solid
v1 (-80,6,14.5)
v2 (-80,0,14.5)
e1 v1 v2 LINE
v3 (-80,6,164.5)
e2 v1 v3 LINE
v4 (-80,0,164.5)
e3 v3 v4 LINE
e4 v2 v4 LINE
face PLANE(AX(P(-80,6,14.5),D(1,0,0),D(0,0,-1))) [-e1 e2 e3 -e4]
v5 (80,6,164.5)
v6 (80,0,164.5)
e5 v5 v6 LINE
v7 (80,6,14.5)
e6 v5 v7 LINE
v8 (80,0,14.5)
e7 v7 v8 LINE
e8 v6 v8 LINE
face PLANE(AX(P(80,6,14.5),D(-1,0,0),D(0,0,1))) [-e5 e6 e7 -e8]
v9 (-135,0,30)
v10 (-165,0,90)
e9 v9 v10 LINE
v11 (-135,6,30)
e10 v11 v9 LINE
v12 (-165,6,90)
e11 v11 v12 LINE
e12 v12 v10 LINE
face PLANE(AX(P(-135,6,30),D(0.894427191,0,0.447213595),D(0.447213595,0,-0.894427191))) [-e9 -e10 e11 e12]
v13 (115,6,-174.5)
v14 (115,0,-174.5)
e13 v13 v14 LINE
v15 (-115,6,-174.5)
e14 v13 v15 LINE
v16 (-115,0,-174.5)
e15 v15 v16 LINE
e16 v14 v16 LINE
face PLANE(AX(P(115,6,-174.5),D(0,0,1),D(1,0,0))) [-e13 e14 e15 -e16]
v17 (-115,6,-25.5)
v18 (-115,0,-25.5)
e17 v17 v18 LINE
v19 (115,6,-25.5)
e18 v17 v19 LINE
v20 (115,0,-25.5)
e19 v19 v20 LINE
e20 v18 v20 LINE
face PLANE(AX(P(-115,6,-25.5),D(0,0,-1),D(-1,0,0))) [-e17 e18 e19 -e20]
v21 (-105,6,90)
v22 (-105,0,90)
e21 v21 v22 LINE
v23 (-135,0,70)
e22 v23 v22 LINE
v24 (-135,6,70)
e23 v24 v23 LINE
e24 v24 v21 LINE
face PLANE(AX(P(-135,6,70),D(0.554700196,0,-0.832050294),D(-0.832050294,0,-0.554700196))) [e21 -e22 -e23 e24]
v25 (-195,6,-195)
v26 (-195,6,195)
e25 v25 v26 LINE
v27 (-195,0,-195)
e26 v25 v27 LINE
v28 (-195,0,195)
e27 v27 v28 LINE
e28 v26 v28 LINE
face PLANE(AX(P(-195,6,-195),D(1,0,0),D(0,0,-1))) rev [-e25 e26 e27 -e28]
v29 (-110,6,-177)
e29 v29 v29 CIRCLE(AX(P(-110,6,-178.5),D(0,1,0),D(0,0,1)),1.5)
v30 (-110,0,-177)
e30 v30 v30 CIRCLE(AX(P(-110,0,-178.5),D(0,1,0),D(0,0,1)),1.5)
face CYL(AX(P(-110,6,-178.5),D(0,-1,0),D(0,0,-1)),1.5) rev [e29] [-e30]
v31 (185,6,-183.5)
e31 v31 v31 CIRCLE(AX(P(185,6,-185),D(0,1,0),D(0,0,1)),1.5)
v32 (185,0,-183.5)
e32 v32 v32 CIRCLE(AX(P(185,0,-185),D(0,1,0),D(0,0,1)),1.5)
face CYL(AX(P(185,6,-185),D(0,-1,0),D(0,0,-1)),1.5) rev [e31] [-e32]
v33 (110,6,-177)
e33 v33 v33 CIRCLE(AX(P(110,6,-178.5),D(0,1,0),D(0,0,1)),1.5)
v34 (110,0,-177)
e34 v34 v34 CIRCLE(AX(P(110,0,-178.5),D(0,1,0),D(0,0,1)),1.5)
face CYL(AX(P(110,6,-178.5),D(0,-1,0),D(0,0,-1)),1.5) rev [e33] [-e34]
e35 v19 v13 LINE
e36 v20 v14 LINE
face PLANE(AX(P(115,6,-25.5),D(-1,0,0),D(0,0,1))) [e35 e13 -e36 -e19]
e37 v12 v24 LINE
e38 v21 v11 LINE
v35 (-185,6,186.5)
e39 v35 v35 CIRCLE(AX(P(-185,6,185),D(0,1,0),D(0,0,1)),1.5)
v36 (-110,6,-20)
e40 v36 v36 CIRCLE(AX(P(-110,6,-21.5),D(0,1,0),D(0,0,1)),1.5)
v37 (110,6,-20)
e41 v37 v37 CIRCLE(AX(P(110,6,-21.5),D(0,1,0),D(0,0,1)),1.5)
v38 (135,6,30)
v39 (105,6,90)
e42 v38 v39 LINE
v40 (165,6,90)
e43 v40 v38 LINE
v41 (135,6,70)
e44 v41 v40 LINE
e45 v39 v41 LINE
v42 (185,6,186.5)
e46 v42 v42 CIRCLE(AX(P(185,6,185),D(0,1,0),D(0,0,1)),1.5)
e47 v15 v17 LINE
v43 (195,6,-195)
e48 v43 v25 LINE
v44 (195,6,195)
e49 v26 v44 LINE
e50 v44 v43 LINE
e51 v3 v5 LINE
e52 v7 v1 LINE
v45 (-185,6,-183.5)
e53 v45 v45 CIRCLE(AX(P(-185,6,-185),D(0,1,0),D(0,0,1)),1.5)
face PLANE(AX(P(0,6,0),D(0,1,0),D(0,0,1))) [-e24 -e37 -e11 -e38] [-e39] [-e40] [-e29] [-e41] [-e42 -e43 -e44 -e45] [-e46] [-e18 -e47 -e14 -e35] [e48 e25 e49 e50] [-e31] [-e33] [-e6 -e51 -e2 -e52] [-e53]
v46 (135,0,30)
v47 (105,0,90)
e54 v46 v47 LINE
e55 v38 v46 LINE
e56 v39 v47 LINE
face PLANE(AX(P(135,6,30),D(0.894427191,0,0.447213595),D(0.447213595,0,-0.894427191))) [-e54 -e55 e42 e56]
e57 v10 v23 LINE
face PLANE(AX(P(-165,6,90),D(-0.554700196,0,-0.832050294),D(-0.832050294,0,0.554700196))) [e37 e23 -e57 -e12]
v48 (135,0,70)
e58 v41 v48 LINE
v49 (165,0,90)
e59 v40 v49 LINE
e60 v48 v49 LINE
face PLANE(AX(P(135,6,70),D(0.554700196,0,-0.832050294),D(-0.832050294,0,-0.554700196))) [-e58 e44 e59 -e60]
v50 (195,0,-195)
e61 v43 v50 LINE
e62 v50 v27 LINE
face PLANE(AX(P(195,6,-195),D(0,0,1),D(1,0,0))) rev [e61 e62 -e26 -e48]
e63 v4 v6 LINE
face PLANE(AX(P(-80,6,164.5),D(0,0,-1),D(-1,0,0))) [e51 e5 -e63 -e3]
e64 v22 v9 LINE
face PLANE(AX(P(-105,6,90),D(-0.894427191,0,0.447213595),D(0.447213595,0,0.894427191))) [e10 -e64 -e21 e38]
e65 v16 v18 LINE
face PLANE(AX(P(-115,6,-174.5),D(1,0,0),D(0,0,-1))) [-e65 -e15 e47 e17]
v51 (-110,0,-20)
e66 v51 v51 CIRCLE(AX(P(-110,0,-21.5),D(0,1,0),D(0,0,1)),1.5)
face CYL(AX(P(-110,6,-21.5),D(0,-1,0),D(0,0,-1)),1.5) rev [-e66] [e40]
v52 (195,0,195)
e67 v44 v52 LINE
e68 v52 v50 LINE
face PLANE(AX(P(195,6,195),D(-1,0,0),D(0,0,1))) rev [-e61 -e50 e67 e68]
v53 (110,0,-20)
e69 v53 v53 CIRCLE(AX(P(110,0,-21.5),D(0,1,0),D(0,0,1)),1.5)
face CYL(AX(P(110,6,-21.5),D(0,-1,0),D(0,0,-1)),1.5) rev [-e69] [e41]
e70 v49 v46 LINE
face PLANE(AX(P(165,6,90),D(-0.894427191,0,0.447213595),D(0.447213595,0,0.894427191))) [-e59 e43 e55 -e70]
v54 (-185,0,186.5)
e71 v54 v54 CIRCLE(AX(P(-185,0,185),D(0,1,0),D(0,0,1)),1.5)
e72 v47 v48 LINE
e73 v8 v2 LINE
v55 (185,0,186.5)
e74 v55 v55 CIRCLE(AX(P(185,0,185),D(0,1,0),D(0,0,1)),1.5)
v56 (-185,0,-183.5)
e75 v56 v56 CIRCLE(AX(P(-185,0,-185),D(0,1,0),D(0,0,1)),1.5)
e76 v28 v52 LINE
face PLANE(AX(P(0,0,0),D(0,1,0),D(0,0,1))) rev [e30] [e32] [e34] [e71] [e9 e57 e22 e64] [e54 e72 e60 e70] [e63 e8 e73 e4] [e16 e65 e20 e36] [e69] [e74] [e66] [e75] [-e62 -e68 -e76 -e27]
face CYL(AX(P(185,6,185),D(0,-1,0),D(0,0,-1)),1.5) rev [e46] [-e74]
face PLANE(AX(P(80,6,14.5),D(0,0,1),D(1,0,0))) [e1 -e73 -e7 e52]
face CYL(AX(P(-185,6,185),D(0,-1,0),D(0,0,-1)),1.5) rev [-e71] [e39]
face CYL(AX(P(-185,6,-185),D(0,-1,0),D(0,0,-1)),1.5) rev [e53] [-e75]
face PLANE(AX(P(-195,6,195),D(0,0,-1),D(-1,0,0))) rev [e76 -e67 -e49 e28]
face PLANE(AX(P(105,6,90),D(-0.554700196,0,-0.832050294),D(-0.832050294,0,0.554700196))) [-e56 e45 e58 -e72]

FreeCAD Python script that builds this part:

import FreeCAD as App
import Part
import Sketcher
Q = App.Units.Quantity

doc = App.newDocument("Part")
params = doc.addObject("Spreadsheet::Sheet", "Params")
for row, (alias, value) in enumerate([
    ("sketch1_diameter", "3 mm"),
    ("sketch1_width", "390 mm"),
    ("sketch1_width2", "160 mm"),
    ("sketch1_width3", "230 mm"),
    ("sketch1_height", "150 mm"),
    ("pad1_length", "6 mm"),
], start=1):
    params.set(f"A{row}", alias)
    params.set(f"B{row}", "=" + value)
    params.setAlias(f"B{row}", alias)

body = doc.addObject("PartDesign::Body", "Body")

# Sketch on XZ plane
sketch1 = body.newObject("Sketcher::SketchObject", "Sketch")
sketch1.AttachmentSupport = (doc.getObject("XZ_Plane"), [""])
sketch1.MapMode = "FlatFace"
sketch1.addGeometry([
    Part.LineSegment(App.Vector(-195, -195, 0), App.Vector(-195, 195, 0)),  # 0
    Part.LineSegment(App.Vector(-195, 195, 0), App.Vector(195, 195, 0)),  # 1
    Part.LineSegment(App.Vector(195, 195, 0), App.Vector(195, -195, 0)),  # 2
    Part.LineSegment(App.Vector(195, -195, 0), App.Vector(-195, -195, 0)),  # 3
    Part.Circle(App.Vector(-185, 185, 0), App.Vector(0, 0, 1), 1.5),  # 4
    Part.LineSegment(App.Vector(-105, 90, 0), App.Vector(-135, 70, 0)),  # 5
    Part.LineSegment(App.Vector(-135, 70, 0), App.Vector(-165, 90, 0)),  # 6
    Part.LineSegment(App.Vector(-165, 90, 0), App.Vector(-135, 30, 0)),  # 7
    Part.LineSegment(App.Vector(-135, 30, 0), App.Vector(-105, 90, 0)),  # 8
    Part.Circle(App.Vector(185, 185, 0), App.Vector(0, 0, 1), 1.5),  # 9
    Part.LineSegment(App.Vector(80, 164.5, 0), App.Vector(-80, 164.5, 0)),  # 10
    Part.LineSegment(App.Vector(-80, 164.5, 0), App.Vector(-80, 14.5, 0)),  # 11
    Part.LineSegment(App.Vector(-80, 14.5, 0), App.Vector(80, 14.5, 0)),  # 12
    Part.LineSegment(App.Vector(80, 14.5, 0), App.Vector(80, 164.5, 0)),  # 13
    Part.LineSegment(App.Vector(165, 90, 0), App.Vector(135, 70, 0)),  # 14
    Part.LineSegment(App.Vector(135, 70, 0), App.Vector(105, 90, 0)),  # 15
    Part.LineSegment(App.Vector(105, 90, 0), App.Vector(135, 30, 0)),  # 16
    Part.LineSegment(App.Vector(135, 30, 0), App.Vector(165, 90, 0)),  # 17
    Part.Circle(App.Vector(-110, -21.5, 0), App.Vector(0, 0, 1), 1.5),  # 18
    Part.Circle(App.Vector(-185, -185, 0), App.Vector(0, 0, 1), 1.5),  # 19
    Part.Circle(App.Vector(-110, -178.5, 0), App.Vector(0, 0, 1), 1.5),  # 20
    Part.Circle(App.Vector(110, -21.5, 0), App.Vector(0, 0, 1), 1.5),  # 21
    Part.LineSegment(App.Vector(115, -25.5, 0), App.Vector(-115, -25.5, 0)),  # 22
    Part.LineSegment(App.Vector(-115, -25.5, 0), App.Vector(-115, -174.5, 0)),  # 23
    Part.LineSegment(App.Vector(-115, -174.5, 0), App.Vector(115, -174.5, 0)),  # 24
    Part.LineSegment(App.Vector(115, -174.5, 0), App.Vector(115, -25.5, 0)),  # 25
    Part.Circle(App.Vector(110, -178.5, 0), App.Vector(0, 0, 1), 1.5),  # 26
    Part.Circle(App.Vector(185, -185, 0), App.Vector(0, 0, 1), 1.5),  # 27
], False)
sketch1.addConstraint([
    Sketcher.Constraint("Coincident", 0, 2, 1, 1),
    Sketcher.Constraint("Coincident", 1, 2, 2, 1),
    Sketcher.Constraint("Coincident", 2, 2, 3, 1),
    Sketcher.Constraint("Coincident", 3, 2, 0, 1),
    Sketcher.Constraint("Coincident", 5, 2, 6, 1),
    Sketcher.Constraint("Coincident", 6, 2, 7, 1),
    Sketcher.Constraint("Coincident", 7, 2, 8, 1),
    Sketcher.Constraint("Coincident", 8, 2, 5, 1),
    Sketcher.Constraint("Coincident", 10, 2, 11, 1),
    Sketcher.Constraint("Coincident", 11, 2, 12, 1),
    Sketcher.Constraint("Coincident", 12, 2, 13, 1),
    Sketcher.Constraint("Coincident", 13, 2, 10, 1),
    Sketcher.Constraint("Coincident", 14, 2, 15, 1),
    Sketcher.Constraint("Coincident", 15, 2, 16, 1),
    Sketcher.Constraint("Coincident", 16, 2, 17, 1),
    Sketcher.Constraint("Coincident", 17, 2, 14, 1),
    Sketcher.Constraint("Coincident", 22, 2, 23, 1),
    Sketcher.Constraint("Coincident", 23, 2, 24, 1),
    Sketcher.Constraint("Coincident", 24, 2, 25, 1),
    Sketcher.Constraint("Coincident", 25, 2, 22, 1),
    Sketcher.Constraint("Vertical", 0),
    Sketcher.Constraint("Horizontal", 1),
    Sketcher.Constraint("Vertical", 2),
    Sketcher.Constraint("Horizontal", 3),
    Sketcher.Constraint("Horizontal", 10),
    Sketcher.Constraint("Vertical", 11),
    Sketcher.Constraint("Horizontal", 12),
    Sketcher.Constraint("Vertical", 13),
    Sketcher.Constraint("Horizontal", 22),
    Sketcher.Constraint("Vertical", 23),
    Sketcher.Constraint("Horizontal", 24),
    Sketcher.Constraint("Vertical", 25),
    Sketcher.Constraint("Equal", 4, 9),
    Sketcher.Constraint("Equal", 9, 18),
    Sketcher.Constraint("Equal", 18, 19),
    Sketcher.Constraint("Equal", 19, 20),
    Sketcher.Constraint("Equal", 20, 21),
    Sketcher.Constraint("Equal", 21, 26),
    Sketcher.Constraint("Equal", 26, 27),
    Sketcher.Constraint("Symmetric", 9, 3, 19, 3, -1, 1),
    Sketcher.Constraint("Symmetric", 4, 3, 27, 3, -1, 1),
    Sketcher.Constraint("Symmetric", 0, 2, 2, 2, -1, 1),
    Sketcher.Constraint("Symmetric", 4, 3, 9, 3, -2),
    Sketcher.Constraint("Symmetric", 18, 3, 21, 3, -2),
    Sketcher.Constraint("Symmetric", 20, 3, 26, 3, -2),
    Sketcher.Constraint("Symmetric", 5, 2, 14, 2, -2),
    Sketcher.Constraint("Symmetric", 8, 2, 15, 2, -2),
    Sketcher.Constraint("Symmetric", 7, 2, 16, 2, -2),
    Sketcher.Constraint("Symmetric", 6, 2, 17, 2, -2),
    Sketcher.Constraint("Parallel", 5, 14),
    Sketcher.Constraint("Parallel", 7, 16),
    Sketcher.Constraint("Horizontal", 6, 2, 8, 2),
    Sketcher.Constraint("Vertical", 18, 3, 20, 3),
    Sketcher.Constraint("Equal", 3, 0),
    Sketcher.Constraint("Diameter", 4, Q("3 mm")),
    Sketcher.Constraint("DistanceX", 1, 1, 1, 2, Q("390 mm")),
    Sketcher.Constraint("DistanceX", 10, 2, 10, 1, Q("160 mm")),
    Sketcher.Constraint("DistanceX", 22, 2, 22, 1, Q("230 mm")),
    Sketcher.Constraint("DistanceY", 11, 2, 11, 1, Q("150 mm")),
    Sketcher.Constraint("DistanceY", 23, 2, 23, 1, Q("149 mm")),
    Sketcher.Constraint("DistanceX", 4, 3, -1, 1, Q("185 mm")),
    Sketcher.Constraint("DistanceY", -1, 1, 4, 3, Q("185 mm")),
    Sketcher.Constraint("DistanceX", 18, 3, -1, 1, Q("110 mm")),
    Sketcher.Constraint("DistanceX", 5, 2, -1, 1, Q("135 mm")),
    Sketcher.Constraint("DistanceY", -1, 1, 5, 2, Q("70 mm")),
    Sketcher.Constraint("DistanceX", 6, 2, -1, 1, Q("165 mm")),
    Sketcher.Constraint("DistanceY", -1, 1, 6, 2, Q("90 mm")),
    Sketcher.Constraint("DistanceY", -1, 1, 7, 2, Q("30 mm")),
    Sketcher.Constraint("DistanceX", 10, 2, -1, 1, Q("80 mm")),
    Sketcher.Constraint("DistanceX", 22, 2, -1, 1, Q("115 mm")),
    Sketcher.Constraint("DistanceY", 20, 3, 18, 3, Q("157 mm")),
    Sketcher.Constraint("DistanceY", 18, 3, 11, 2, Q("36 mm")),
    Sketcher.Constraint("DistanceY", 22, 2, 18, 3, Q("4 mm")),
    Sketcher.Constraint("DistanceY", 18, 3, -1, 1, Q("21.5 mm")),
])
sketch1.setExpression("Constraints[54]", "Params.sketch1_diameter")
sketch1.setExpression("Constraints[55]", "Params.sketch1_width")
sketch1.setExpression("Constraints[56]", "Params.sketch1_width2")
sketch1.setExpression("Constraints[57]", "Params.sketch1_width3")
sketch1.setExpression("Constraints[58]", "Params.sketch1_height")
pad1 = body.newObject("PartDesign::Pad", "Pad")
pad1.Profile = sketch1
pad1.setExpression("Length", "Params.pad1_length")
pad1.Reversed = True

doc.recompute()
